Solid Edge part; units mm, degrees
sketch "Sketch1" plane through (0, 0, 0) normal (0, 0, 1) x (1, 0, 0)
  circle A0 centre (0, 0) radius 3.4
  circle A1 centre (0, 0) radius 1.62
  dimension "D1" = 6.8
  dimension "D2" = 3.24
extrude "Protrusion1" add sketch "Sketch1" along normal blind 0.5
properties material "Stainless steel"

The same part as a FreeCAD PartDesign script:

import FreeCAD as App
import Part
import Sketcher

V = App.Vector
Q = App.Units.Quantity

doc = App.newDocument("Part")
body = doc.addObject("PartDesign::Body", "Body")

# Sketch on XY plane
sketch1 = doc.addObject("Sketcher::SketchObject", "Sketch")
body.addObject(sketch1)
sketch1.AttachmentSupport = (doc.XY_Plane, [""])
sketch1.MapMode = "FlatFace"
sketch1.addGeometry(Part.Circle(V(0, 0, 0), V(0, 0, 1), 3.4), False)
sketch1.addGeometry(Part.Circle(V(0, 0, 0), V(0, 0, 1), 1.62), False)
sketch1.addConstraint(Sketcher.Constraint("Coincident", 0, 3, -1, 1))
sketch1.addConstraint(Sketcher.Constraint("Coincident", 1, 3, -1, 1))
sketch1.addConstraint(Sketcher.Constraint("Diameter", 0, Q("6.8 mm")))
sketch1.addConstraint(Sketcher.Constraint("Diameter", 1, Q("3.24 mm")))
pad1 = doc.addObject("PartDesign::Pad", "Pad")
body.addObject(pad1)
pad1.Profile = sketch1
pad1.Length = 0.5

doc.recompute()
